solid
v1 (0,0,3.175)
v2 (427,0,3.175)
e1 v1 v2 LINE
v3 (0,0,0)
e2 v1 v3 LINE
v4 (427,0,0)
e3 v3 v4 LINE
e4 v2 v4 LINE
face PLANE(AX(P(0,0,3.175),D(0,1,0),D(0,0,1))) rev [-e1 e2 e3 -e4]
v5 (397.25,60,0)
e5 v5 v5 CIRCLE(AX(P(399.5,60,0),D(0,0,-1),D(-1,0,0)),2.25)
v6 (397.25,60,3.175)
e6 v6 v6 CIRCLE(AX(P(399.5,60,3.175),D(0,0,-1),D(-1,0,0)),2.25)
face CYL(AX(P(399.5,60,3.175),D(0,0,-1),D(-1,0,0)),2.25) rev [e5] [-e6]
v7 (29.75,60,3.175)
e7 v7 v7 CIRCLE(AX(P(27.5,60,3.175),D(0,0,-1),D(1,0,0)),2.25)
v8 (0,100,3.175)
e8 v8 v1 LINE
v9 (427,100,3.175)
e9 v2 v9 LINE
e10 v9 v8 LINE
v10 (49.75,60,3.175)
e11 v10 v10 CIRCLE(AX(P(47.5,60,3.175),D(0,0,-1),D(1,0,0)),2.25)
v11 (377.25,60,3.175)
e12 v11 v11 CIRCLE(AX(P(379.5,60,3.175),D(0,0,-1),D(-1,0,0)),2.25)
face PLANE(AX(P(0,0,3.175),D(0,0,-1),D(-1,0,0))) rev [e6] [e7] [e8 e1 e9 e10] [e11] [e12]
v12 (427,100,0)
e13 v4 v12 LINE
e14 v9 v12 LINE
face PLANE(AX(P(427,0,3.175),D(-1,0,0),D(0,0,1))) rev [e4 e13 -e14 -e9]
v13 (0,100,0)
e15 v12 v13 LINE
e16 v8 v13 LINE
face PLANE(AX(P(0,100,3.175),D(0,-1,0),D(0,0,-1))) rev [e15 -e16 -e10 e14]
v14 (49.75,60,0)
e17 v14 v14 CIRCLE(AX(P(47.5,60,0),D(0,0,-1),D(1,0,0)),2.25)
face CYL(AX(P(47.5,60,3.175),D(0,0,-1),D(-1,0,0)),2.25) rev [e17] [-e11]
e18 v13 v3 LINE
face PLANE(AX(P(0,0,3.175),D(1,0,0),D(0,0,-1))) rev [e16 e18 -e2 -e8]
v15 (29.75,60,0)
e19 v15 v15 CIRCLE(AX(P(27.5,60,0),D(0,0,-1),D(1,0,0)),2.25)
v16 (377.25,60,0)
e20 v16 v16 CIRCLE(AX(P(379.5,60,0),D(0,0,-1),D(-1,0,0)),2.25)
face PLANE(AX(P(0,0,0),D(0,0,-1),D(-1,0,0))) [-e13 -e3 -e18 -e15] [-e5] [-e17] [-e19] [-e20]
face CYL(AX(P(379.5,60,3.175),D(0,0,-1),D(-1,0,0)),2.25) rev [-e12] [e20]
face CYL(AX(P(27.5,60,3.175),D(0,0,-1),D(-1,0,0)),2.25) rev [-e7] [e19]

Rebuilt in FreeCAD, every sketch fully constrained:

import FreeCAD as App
import Part
import Sketcher
Q = App.Units.Quantity


def add_polygon(sketch, points):
    """Adds a closed chain of lines whose ends are joined by coincident constraints."""
    first, n = sketch.GeometryCount, len(points)
    for a, b in zip(points, points[1:] + points[:1]):
        sketch.addGeometry(Part.LineSegment(App.Vector(*a, 0), App.Vector(*b, 0)), False)
    for i in range(n):
        sketch.addConstraint(Sketcher.Constraint("Coincident", first + i, 2, first + (i + 1) % n, 1))

doc = App.newDocument("Part")
body = doc.addObject("PartDesign::Body", "Body")

# Sketch on XY plane
sketch1 = body.newObject("Sketcher::SketchObject", "Sketch")
sketch1.AttachmentSupport = (doc.getObject("XY_Plane"), [""])
sketch1.MapMode = "FlatFace"
add_polygon(sketch1, [(0, 100), (0, 0), (427, 0), (427, 100)])  # lines 0-3
sketch1.addConstraint([
    Sketcher.Constraint("Vertical", 0),
    Sketcher.Constraint("Horizontal", 1),
    Sketcher.Constraint("Vertical", 2),
    Sketcher.Constraint("Horizontal", 3),
    Sketcher.Constraint("Coincident", 0, 2, -1, 1),
    Sketcher.Constraint("DistanceX", 1, 1, 1, 2, Q("427 mm")),
    Sketcher.Constraint("DistanceY", 0, 2, 0, 1, Q("100 mm")),
])
pad1 = body.newObject("PartDesign::Pad", "Pad")
pad1.Profile = sketch1
pad1.Length = 3.175

# Sketch on XY plane
sketch2 = body.newObject("Sketcher::SketchObject", "Sketch001")
sketch2.AttachmentSupport = (doc.getObject("XY_Plane"), [""])
sketch2.MapMode = "FlatFace"
sketch2.addGeometry([
    Part.Circle(App.Vector(399.5, 60, 0), App.Vector(0, 0, 1), 2.2),
    Part.Circle(App.Vector(379.5, 60, 0), App.Vector(0, 0, 1), 2.2),
    Part.Circle(App.Vector(27.5, 60, 0), App.Vector(0, 0, 1), 2.2),
    Part.Circle(App.Vector(47.5, 60, 0), App.Vector(0, 0, 1), 2.2),
], False)
sketch2.addConstraint([
    Sketcher.Constraint("Equal", 0, 1),
    Sketcher.Constraint("Equal", 1, 2),
    Sketcher.Constraint("Equal", 2, 3),
    Sketcher.Constraint("Horizontal", 0, 3, 1, 3),
    Sketcher.Constraint("Horizontal", 1, 3, 2, 3),
    Sketcher.Constraint("Horizontal", 2, 3, 3, 3),
    Sketcher.Constraint("Diameter", 0, Q("4.5 mm")),
    Sketcher.Constraint("DistanceY", -1, 1, 0, 3, Q("60 mm")),
    Sketcher.Constraint("DistanceX", 1, 3, 0, 3, Q("20 mm")),
    Sketcher.Constraint("DistanceX", 2, 3, 1, 3, Q("352 mm")),
    Sketcher.Constraint("DistanceX", 2, 3, 3, 3, Q("20 mm")),
    Sketcher.Constraint("DistanceX", -1, 1, 0, 3, Q("399.5 mm")),
])
pocket1 = body.newObject("PartDesign::Pocket", "Pocket")
pocket1.Profile = sketch2
pocket1.Type = "ThroughAll"
pocket1.Reversed = True

doc.recompute()
